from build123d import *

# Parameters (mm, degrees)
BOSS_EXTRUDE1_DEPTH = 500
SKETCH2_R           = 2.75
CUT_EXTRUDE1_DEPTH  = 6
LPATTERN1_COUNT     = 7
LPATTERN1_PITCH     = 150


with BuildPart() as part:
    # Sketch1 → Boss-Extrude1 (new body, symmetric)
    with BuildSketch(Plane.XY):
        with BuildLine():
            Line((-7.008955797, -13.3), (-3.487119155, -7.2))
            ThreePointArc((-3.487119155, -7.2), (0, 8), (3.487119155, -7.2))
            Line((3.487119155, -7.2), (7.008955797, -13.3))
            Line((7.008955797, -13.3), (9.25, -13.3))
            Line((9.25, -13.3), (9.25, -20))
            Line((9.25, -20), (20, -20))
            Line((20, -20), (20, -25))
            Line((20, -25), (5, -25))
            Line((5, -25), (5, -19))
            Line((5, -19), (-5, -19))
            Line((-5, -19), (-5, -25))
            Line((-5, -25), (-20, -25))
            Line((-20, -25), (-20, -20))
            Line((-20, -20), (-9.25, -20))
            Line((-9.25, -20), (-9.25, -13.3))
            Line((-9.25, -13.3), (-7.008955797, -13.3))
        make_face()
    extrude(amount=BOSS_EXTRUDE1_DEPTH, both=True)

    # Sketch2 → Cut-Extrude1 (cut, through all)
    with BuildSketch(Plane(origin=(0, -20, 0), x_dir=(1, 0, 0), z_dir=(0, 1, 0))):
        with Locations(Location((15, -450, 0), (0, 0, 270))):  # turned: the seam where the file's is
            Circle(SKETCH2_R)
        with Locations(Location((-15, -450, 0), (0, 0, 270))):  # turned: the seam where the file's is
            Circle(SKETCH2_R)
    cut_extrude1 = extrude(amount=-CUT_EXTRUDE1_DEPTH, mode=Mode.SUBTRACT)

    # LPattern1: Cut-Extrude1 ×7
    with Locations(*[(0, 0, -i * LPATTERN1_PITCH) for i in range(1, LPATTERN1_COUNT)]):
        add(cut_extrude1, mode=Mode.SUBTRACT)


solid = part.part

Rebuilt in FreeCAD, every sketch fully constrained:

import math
import FreeCAD as App
import Part
import Sketcher
from FreeCAD import Vector
Q = App.Units.Quantity

doc = App.newDocument("Part")
body = doc.addObject("PartDesign::Body", "Body")

sketch1 = body.newObject("Sketcher::SketchObject", "Sketch")
sketch1.AttachmentSupport = (doc.getObject("XY_Plane"), [""])
sketch1.MapMode = "FlatFace"
sketch1.addGeometry([
    Part.LineSegment(Vector(-3.5, -7.2, 0), Vector(-7, -13.3, 0)),
    Part.LineSegment(Vector(-7, -13.3, 0), Vector(-9.2, -13.3, 0)),
    Part.LineSegment(Vector(-9.2, -13.3, 0), Vector(-9.2, -20, 0)),
    Part.LineSegment(Vector(-9.2, -20, 0), Vector(-20, -20, 0)),
    Part.LineSegment(Vector(-20, -20, 0), Vector(-20, -25, 0)),
    Part.LineSegment(Vector(-20, -25, 0), Vector(-5, -25, 0)),
    Part.LineSegment(Vector(-5, -25, 0), Vector(-5, -19, 0)),
    Part.LineSegment(Vector(-5, -19, 0), Vector(5, -19, 0)),
    Part.LineSegment(Vector(5, -19, 0), Vector(5, -25, 0)),
    Part.LineSegment(Vector(5, -25, 0), Vector(20, -25, 0)),
    Part.LineSegment(Vector(20, -25, 0), Vector(20, -20, 0)),
    Part.LineSegment(Vector(20, -20, 0), Vector(9.2, -20, 0)),
    Part.LineSegment(Vector(9.2, -20, 0), Vector(9.2, -13.3, 0)),
    Part.LineSegment(Vector(9.2, -13.3, 0), Vector(7, -13.3, 0)),
    Part.LineSegment(Vector(7, -13.3, 0), Vector(3.5, -7.2, 0)),
    Part.ArcOfCircle(Part.Circle(Vector(0, 0, 0), Vector(0, 0, 1), 8), math.radians(-64), math.radians(244)),
], False)
sketch1.addConstraint([
    Sketcher.Constraint("Coincident", 0, 2, 1, 1),
    Sketcher.Constraint("Coincident", 1, 2, 2, 1),
    Sketcher.Constraint("Coincident", 2, 2, 3, 1),
    Sketcher.Constraint("Coincident", 3, 2, 4, 1),
    Sketcher.Constraint("Coincident", 4, 2, 5, 1),
    Sketcher.Constraint("Coincident", 5, 2, 6, 1),
    Sketcher.Constraint("Coincident", 6, 2, 7, 1),
    Sketcher.Constraint("Coincident", 7, 2, 8, 1),
    Sketcher.Constraint("Coincident", 8, 2, 9, 1),
    Sketcher.Constraint("Coincident", 9, 2, 10, 1),
    Sketcher.Constraint("Coincident", 10, 2, 11, 1),
    Sketcher.Constraint("Coincident", 11, 2, 12, 1),
    Sketcher.Constraint("Coincident", 12, 2, 13, 1),
    Sketcher.Constraint("Coincident", 13, 2, 14, 1),
    Sketcher.Constraint("Coincident", 14, 2, 15, 1),
    Sketcher.Constraint("Coincident", 15, 2, 0, 1),
    Sketcher.Constraint("Horizontal", 1),
    Sketcher.Constraint("Vertical", 2),
    Sketcher.Constraint("Horizontal", 3),
    Sketcher.Constraint("Vertical", 4),
    Sketcher.Constraint("Horizontal", 5),
    Sketcher.Constraint("Vertical", 6),
    Sketcher.Constraint("Horizontal", 7),
    Sketcher.Constraint("Vertical", 8),
    Sketcher.Constraint("Horizontal", 9),
    Sketcher.Constraint("Vertical", 10),
    Sketcher.Constraint("Horizontal", 11),
    Sketcher.Constraint("Vertical", 12),
    Sketcher.Constraint("Horizontal", 13),
    Sketcher.Constraint("Coincident", 15, 3, -1, 1),
    Sketcher.Constraint("Symmetric", 5, 2, 8, 2, -2),
    Sketcher.Constraint("Symmetric", 3, 2, 10, 2, -2),
    Sketcher.Constraint("Symmetric", 1, 2, 12, 2, -2),
    Sketcher.Constraint("Horizontal", 14, 2, 15, 2),
    Sketcher.Constraint("Equal", 1, 13),
    Sketcher.Constraint("Radius", 15, 8.0),
    Sketcher.Constraint("DistanceX", 5, 1, 5, 2, 15.0),
    Sketcher.Constraint("DistanceX", 7, 1, 7, 2, 10.0),
    Sketcher.Constraint("DistanceY", 4, 2, 4, 1, 5.0),
    Sketcher.Constraint("DistanceY", 6, 1, 6, 2, 6.0),
    Sketcher.Constraint("Angle", 0, Q("-120 deg")),
    Sketcher.Constraint("DistanceY", 2, 2, 2, 1, 6.7),
    Sketcher.Constraint("DistanceY", 2, 2, -1, 1, 20.0),
    Sketcher.Constraint("DistanceX", 3, 2, 3, 1, 10.75),
    Sketcher.Constraint("DistanceY", 14, 2, -1, 1, 7.2),
])
pad1 = body.newObject("PartDesign::Pad", "Pad")
pad1.Profile = sketch1
pad1.Length = 1000
pad1.Midplane = True

sketch2 = body.newObject("Sketcher::SketchObject", "Sketch001")
sketch2.AttachmentSupport = (doc.getObject("XZ_Plane"), [""])
sketch2.MapMode = "FlatFace"
sketch2.AttachmentOffset = App.Placement(Vector(0, 0, 20), App.Rotation())
sketch2.addGeometry([
    Part.Circle(Vector(15, 450, 0), Vector(0, 0, 1), 2.8),
    Part.Circle(Vector(-15, 450, 0), Vector(0, 0, 1), 2.8),
], False)
sketch2.addConstraint([
    Sketcher.Constraint("Equal", 0, 1),
    Sketcher.Constraint("Symmetric", 0, 3, 1, 3, -2),
    Sketcher.Constraint("Diameter", 0, 5.5),
    Sketcher.Constraint("DistanceX", -1, 1, 0, 3, 15.0),
    Sketcher.Constraint("DistanceY", -1, 1, 0, 3, 450.0),
])
pocket1 = body.newObject("PartDesign::Pocket", "Pocket")
pocket1.Profile = sketch2
pocket1.Type = "ThroughAll"
pocket1.Reversed = True
doc.recompute()

linearpattern = body.newObject("PartDesign::LinearPattern", "LinearPattern")
linearpattern.Originals = [pocket1]
linearpattern.Direction = (doc.getObject("Z_Axis"), [""])
linearpattern.Mode = "offset"
linearpattern.Offset = 150
linearpattern.Occurrences = 7
linearpattern.Reversed = True
body.Tip = linearpattern

doc.recompute()
